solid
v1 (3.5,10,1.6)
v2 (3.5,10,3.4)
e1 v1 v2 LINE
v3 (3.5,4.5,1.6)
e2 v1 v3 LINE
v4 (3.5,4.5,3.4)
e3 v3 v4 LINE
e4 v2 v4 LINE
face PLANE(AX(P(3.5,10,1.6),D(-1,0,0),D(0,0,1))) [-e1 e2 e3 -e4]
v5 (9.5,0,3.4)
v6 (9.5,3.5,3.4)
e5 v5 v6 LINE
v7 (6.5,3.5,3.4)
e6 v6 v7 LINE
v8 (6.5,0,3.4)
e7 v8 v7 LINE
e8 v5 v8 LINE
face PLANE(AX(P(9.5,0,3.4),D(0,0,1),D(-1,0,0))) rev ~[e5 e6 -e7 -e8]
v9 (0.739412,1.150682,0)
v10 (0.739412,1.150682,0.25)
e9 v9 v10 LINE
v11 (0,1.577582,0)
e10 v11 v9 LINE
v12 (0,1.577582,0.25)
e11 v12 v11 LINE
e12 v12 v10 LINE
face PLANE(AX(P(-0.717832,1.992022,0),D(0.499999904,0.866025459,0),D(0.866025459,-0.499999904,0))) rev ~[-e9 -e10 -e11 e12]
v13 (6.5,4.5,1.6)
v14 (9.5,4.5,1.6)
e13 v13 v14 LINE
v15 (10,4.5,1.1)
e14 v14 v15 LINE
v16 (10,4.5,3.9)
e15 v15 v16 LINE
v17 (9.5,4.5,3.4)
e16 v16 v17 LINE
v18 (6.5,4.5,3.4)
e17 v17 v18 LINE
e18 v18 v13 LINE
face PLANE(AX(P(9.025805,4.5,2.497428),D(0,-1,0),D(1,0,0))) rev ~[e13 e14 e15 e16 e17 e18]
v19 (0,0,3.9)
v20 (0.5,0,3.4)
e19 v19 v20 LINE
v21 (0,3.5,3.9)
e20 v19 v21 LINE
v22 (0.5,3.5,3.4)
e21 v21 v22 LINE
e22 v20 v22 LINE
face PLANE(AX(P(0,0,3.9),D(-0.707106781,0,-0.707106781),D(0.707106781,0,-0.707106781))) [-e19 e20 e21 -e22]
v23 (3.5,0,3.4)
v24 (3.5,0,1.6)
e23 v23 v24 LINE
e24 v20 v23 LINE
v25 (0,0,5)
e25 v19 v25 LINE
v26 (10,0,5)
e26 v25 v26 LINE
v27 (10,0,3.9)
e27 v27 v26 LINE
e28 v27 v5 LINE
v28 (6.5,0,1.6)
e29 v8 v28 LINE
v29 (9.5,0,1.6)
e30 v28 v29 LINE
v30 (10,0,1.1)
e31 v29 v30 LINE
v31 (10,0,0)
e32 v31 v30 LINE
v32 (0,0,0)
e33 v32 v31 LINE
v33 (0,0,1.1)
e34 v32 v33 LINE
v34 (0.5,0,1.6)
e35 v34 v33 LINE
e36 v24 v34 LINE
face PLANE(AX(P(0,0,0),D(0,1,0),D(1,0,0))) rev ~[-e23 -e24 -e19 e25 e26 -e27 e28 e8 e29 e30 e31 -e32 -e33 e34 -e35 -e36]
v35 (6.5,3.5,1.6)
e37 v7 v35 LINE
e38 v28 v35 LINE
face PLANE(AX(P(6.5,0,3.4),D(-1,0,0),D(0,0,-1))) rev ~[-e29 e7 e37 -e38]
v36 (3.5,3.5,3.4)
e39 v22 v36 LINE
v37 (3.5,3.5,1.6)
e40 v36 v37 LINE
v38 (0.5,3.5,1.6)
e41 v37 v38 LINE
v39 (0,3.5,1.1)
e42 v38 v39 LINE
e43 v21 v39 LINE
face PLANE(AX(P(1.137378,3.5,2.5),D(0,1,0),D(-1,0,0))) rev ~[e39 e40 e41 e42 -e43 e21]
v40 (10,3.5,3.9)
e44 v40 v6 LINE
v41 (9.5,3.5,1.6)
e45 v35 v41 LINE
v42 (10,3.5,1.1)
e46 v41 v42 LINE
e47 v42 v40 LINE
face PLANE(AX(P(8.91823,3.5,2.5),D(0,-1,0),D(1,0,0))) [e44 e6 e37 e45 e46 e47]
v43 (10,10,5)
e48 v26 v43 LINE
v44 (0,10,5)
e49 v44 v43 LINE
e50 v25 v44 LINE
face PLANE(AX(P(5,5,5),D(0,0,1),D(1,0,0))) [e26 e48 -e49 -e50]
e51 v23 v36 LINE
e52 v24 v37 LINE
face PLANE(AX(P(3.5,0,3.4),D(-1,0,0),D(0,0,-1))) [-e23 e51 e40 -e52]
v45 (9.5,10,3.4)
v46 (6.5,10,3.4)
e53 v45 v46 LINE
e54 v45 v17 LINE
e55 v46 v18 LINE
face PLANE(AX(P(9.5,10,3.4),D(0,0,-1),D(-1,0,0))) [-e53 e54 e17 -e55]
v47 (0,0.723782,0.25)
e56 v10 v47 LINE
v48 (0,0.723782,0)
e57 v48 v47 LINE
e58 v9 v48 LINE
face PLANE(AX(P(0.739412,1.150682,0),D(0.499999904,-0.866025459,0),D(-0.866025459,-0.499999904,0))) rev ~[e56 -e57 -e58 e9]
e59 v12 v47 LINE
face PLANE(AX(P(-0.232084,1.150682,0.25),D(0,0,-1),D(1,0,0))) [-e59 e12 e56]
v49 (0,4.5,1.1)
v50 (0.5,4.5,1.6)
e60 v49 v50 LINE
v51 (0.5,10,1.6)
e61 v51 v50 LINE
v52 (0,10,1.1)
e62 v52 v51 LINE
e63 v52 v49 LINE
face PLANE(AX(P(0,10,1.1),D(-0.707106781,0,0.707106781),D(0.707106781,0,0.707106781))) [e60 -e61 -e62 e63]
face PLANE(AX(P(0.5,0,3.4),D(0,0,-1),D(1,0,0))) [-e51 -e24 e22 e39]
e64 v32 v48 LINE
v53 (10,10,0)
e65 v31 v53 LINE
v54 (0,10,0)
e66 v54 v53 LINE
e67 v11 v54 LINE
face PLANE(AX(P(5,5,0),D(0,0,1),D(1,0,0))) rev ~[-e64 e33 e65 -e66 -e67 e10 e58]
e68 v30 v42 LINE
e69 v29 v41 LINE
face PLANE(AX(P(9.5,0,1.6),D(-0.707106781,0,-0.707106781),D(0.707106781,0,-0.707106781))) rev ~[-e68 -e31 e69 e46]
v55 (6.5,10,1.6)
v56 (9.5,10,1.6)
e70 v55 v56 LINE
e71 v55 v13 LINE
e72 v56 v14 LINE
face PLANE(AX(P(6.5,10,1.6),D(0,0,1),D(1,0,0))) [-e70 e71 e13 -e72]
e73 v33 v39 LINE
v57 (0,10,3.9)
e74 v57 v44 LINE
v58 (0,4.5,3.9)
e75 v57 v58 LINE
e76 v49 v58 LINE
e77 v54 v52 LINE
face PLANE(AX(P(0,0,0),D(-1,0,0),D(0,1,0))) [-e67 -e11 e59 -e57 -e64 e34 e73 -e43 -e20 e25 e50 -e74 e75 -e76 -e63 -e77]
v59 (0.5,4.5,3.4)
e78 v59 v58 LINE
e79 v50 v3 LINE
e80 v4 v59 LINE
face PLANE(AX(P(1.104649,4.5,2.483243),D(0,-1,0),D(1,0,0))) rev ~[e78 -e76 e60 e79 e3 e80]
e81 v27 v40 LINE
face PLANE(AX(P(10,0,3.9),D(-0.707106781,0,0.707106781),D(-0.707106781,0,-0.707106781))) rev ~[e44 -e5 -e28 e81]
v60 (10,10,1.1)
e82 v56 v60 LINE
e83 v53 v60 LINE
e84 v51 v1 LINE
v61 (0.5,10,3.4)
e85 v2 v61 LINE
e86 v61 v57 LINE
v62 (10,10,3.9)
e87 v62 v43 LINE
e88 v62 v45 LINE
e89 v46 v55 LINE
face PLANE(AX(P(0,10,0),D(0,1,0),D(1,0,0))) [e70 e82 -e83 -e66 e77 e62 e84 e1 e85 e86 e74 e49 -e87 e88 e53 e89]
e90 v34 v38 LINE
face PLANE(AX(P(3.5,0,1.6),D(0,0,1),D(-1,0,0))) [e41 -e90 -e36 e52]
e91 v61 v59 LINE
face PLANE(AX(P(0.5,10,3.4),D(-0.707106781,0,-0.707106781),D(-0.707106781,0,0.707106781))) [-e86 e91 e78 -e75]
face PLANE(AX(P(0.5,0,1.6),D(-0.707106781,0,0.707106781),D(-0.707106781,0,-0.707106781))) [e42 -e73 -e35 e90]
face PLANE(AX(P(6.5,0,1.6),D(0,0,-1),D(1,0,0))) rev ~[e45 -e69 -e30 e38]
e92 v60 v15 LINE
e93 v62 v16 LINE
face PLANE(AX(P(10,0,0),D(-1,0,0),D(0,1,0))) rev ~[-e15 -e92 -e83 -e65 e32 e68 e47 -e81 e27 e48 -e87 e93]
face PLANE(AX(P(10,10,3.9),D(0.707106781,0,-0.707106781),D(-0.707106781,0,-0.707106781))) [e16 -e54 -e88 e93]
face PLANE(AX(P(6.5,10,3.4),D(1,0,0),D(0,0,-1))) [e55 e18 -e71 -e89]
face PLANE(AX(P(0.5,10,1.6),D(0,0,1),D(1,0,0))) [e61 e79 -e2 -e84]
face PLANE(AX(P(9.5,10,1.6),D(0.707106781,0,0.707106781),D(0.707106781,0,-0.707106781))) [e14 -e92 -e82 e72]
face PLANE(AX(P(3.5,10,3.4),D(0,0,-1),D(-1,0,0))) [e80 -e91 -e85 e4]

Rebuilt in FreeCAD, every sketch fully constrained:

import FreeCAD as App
import Part
import Sketcher
Q = App.Units.Quantity


def add_polygon(sketch, points):
    """Adds a closed chain of lines whose ends are joined by coincident constraints."""
    first, n = sketch.GeometryCount, len(points)
    for a, b in zip(points, points[1:] + points[:1]):
        sketch.addGeometry(Part.LineSegment(App.Vector(*a, 0), App.Vector(*b, 0)), False)
    for i in range(n):
        sketch.addConstraint(Sketcher.Constraint("Coincident", first + i, 2, first + (i + 1) % n, 1))

doc = App.newDocument("Part")
body = doc.addObject("PartDesign::Body", "Body")

sketch1 = doc.addObject("Sketcher::SketchObject", "Sketch")
body.addObject(sketch1)
sketch1.AttachmentSupport = (doc.XY_Plane, [""])
sketch1.MapMode = "FlatFace"
add_polygon(sketch1, [(0, 10), (0, 0), (10, 0), (10, 10)])
sketch1.addConstraint([
    Sketcher.Constraint("Vertical", 0),
    Sketcher.Constraint("Horizontal", 1),
    Sketcher.Constraint("Vertical", 2),
    Sketcher.Constraint("Horizontal", 3),
    Sketcher.Constraint("Coincident", 0, 2, -1, 1),
    Sketcher.Constraint("Equal", 3, 0),
    Sketcher.Constraint("DistanceX", 1, 1, 1, 2, 10.0),
])
pad1 = doc.addObject("PartDesign::Pad", "Pad")
body.addObject(pad1)
pad1.Profile = sketch1
pad1.Length = 5

sketch2 = doc.addObject("Sketcher::SketchObject", "Sketch001")
body.addObject(sketch2)
sketch2.AttachmentSupport = (doc.XZ_Plane, [""])
sketch2.MapMode = "FlatFace"
add_polygon(sketch2, [(0.5, 3.4), (0, 3.9), (-0.843027, 3.9), (-0.843027, 1.1), (0, 1.1), (0.5, 1.6), (3.5, 1.6), (3.5, 3.4)])
add_polygon(sketch2, [(10.955688, 3.9), (10, 3.9), (9.5, 3.4), (6.5, 3.4), (6.5, 1.6), (9.5, 1.6), (10, 1.1), (10.955688, 1.1)])
sketch2.addConstraint([
    Sketcher.Constraint("Horizontal", 1),
    Sketcher.Constraint("Vertical", 2),
    Sketcher.Constraint("Horizontal", 3),
    Sketcher.Constraint("Horizontal", 5),
    Sketcher.Constraint("Vertical", 6),
    Sketcher.Constraint("Horizontal", 7),
    Sketcher.Constraint("Horizontal", 8),
    Sketcher.Constraint("Horizontal", 10),
    Sketcher.Constraint("Vertical", 11),
    Sketcher.Constraint("Horizontal", 12),
    Sketcher.Constraint("Horizontal", 14),
    Sketcher.Constraint("Vertical", 15),
    Sketcher.Constraint("PointOnObject", 0, 2, -2),
    Sketcher.Constraint("PointOnObject", 3, 2, -2),
    Sketcher.Constraint("Perpendicular", 0, 4),
    Sketcher.Constraint("Parallel", 4, 9),
    Sketcher.Constraint("Perpendicular", 9, 13),
    Sketcher.Constraint("Horizontal", 1, 2, 8, 2),
    Sketcher.Constraint("Horizontal", 7, 2, 9, 2),
    Sketcher.Constraint("Horizontal", 5, 2, 11, 2),
    Sketcher.Constraint("Horizontal", 3, 2, 13, 2),
    Sketcher.Constraint("Vertical", 4, 2, 7, 2),
    Sketcher.Constraint("Vertical", 9, 2, 12, 2),
    Sketcher.Constraint("Vertical", 8, 2, 13, 2),
    Sketcher.Constraint("Equal", 7, 10),
    Sketcher.Constraint("DistanceX", 5, 1, 5, 2, 3.0),
    Sketcher.Constraint("DistanceY", 2, 2, 2, 1, 2.8),
    Sketcher.Constraint("DistanceY", 6, 1, 6, 2, 1.8),
    Sketcher.Constraint("DistanceX", -1, 1, 8, 2, 10.0),
    Sketcher.Constraint("DistanceY", -1, 1, 0, 2, 3.9),
    Sketcher.Constraint("DistanceX", 8, 2, 8, 1, 0.955688),
    Sketcher.Constraint("DistanceX", 1, 2, 1, 1, 0.843027),
])
pocket1 = doc.addObject("PartDesign::Pocket", "Pocket")
body.addObject(pocket1)
pocket1.Profile = sketch2
pocket1.Length = 3.5

sketch3 = doc.addObject("Sketcher::SketchObject", "Sketch002")
body.addObject(sketch3)
sketch3.AttachmentSupport = (doc.XZ_Plane, [""])
sketch3.MapMode = "FlatFace"
sketch3.AttachmentOffset = App.Placement(App.Vector(0, 0, -10), App.Rotation())
add_polygon(sketch3, [(10, 3.9), (11.13075, 3.9), (11.181449, 3.860271), (11.181449, 1.1), (10, 1.1), (9.5, 1.6), (6.5, 1.6), (6.5, 3.4), (9.5, 3.4)])
add_polygon(sketch3, [(0.5, 3.4), (3.5, 3.4), (3.5, 1.6), (0.5, 1.6), (0, 1.1), (-0.98968, 1.1), (-0.82411, 3.9), (0, 3.9)])
sketch3.addConstraint([
    Sketcher.Constraint("Horizontal", 0),
    Sketcher.Constraint("Vertical", 2),
    Sketcher.Constraint("Horizontal", 3),
    Sketcher.Constraint("Horizontal", 5),
    Sketcher.Constraint("Vertical", 6),
    Sketcher.Constraint("Horizontal", 7),
    Sketcher.Constraint("Horizontal", 9),
    Sketcher.Constraint("Vertical", 10),
    Sketcher.Constraint("Horizontal", 11),
    Sketcher.Constraint("Horizontal", 13),
    Sketcher.Constraint("Horizontal", 15),
    Sketcher.Constraint("PointOnObject", 12, 2, -2),
    Sketcher.Constraint("PointOnObject", 15, 2, -2),
    Sketcher.Constraint("Perpendicular", 4, 8),
    Sketcher.Constraint("Parallel", 8, 12),
    Sketcher.Constraint("Perpendicular", 12, 16),
    Sketcher.Constraint("Horizontal", 7, 2, 9, 2),
    Sketcher.Constraint("Horizontal", 5, 2, 10, 2),
    Sketcher.Constraint("Horizontal", 3, 2, 12, 2),
    Sketcher.Constraint("Horizontal", 8, 2, 14, 2),
    Sketcher.Constraint("Vertical", 4, 2, 7, 2),
    Sketcher.Constraint("Vertical", 3, 2, 8, 2),
    Sketcher.Constraint("Vertical", 11, 2, 16, 2),
    Sketcher.Constraint("Equal", 7, 9),
    Sketcher.Constraint("DistanceX", 5, 2, 5, 1, 3.0),
    Sketcher.Constraint("DistanceY", 6, 1, 6, 2, 1.8),
    Sketcher.Constraint("DistanceX", -1, 1, 3, 2, 10.0),
    Sketcher.Constraint("DistanceX", 9, 2, 6, 2, 3.0),
    Sketcher.Constraint("DistanceY", -1, 1, 0, 2, 3.9),
    Sketcher.Constraint("DistanceX", 0, 1, 0, 2, 1.13075),
    Sketcher.Constraint("DistanceX", 3, 2, 3, 1, 1.181449),
    Sketcher.Constraint("DistanceX", 13, 2, 13, 1, 0.98968),
    Sketcher.Constraint("DistanceX", 15, 1, 15, 2, 0.82411),
    Sketcher.Constraint("DistanceY", 2, 2, 2, 1, 2.760271),
])
pocket2 = doc.addObject("PartDesign::Pocket", "Pocket001")
body.addObject(pocket2)
pocket2.Profile = sketch3
pocket2.Length = 5.5
pocket2.Reversed = True

sketch4 = doc.addObject("Sketcher::SketchObject", "Sketch003")
body.addObject(sketch4)
sketch4.AttachmentSupport = (doc.XY_Plane, [""])
sketch4.MapMode = "FlatFace"
add_polygon(sketch4, [(-0.717832, 0.309342), (-0.717832, 1.992022), (0.739412, 1.150682)])
sketch4.addConstraint([
    Sketcher.Constraint("Vertical", 0),
    Sketcher.Constraint("Equal", 1, 2),
    Sketcher.Constraint("Angle", 1, Q("-29.999994 deg")),
    Sketcher.Constraint("DistanceY", 0, 1, 0, 2, 1.68268),
    Sketcher.Constraint("DistanceX", -1, 1, 1, 2, 0.739412),
    Sketcher.Constraint("DistanceY", -1, 1, 0, 2, 1.992022),
])
pocket3 = doc.addObject("PartDesign::Pocket", "Pocket002")
body.addObject(pocket3)
pocket3.Profile = sketch4
pocket3.Length = 0.25
pocket3.Reversed = True

doc.recompute()
